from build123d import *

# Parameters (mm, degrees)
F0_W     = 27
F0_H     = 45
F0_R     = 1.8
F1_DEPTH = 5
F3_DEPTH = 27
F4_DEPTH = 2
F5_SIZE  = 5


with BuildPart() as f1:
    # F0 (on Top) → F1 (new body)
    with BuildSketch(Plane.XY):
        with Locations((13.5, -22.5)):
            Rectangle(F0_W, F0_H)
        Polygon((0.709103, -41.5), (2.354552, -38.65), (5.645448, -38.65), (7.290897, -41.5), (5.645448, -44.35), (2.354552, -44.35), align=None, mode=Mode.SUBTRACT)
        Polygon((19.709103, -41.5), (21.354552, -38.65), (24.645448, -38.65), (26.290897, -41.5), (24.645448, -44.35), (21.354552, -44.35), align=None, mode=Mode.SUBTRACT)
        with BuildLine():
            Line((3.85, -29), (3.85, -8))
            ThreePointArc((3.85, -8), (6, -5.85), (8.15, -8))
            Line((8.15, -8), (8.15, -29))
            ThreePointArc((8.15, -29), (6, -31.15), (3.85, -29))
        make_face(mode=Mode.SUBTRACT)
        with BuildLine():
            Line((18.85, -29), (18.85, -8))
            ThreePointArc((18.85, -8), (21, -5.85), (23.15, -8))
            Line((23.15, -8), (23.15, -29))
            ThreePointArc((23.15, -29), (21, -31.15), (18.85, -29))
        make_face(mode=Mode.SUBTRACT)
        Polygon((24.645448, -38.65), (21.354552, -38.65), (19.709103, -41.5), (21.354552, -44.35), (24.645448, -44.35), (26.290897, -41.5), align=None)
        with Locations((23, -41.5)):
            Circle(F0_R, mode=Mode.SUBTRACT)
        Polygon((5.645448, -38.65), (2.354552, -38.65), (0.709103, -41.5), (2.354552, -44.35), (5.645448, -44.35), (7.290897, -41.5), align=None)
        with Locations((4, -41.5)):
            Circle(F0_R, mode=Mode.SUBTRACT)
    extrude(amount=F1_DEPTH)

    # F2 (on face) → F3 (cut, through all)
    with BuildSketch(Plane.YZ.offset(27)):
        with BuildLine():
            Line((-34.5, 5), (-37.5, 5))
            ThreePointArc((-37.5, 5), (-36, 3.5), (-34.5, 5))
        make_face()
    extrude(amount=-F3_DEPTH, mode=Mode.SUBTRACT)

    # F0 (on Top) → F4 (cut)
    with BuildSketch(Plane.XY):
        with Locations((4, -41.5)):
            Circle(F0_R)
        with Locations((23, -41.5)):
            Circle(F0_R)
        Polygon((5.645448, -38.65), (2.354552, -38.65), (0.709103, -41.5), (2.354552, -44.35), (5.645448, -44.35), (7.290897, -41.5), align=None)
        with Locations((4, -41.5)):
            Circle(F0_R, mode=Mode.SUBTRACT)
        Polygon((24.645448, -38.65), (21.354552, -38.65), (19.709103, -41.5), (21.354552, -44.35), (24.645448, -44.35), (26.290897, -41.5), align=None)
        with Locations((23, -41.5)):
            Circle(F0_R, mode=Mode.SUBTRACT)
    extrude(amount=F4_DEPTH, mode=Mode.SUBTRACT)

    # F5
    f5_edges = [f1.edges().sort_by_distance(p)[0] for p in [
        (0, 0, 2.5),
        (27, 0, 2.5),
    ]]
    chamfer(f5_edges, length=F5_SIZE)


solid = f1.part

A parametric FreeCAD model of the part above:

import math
import FreeCAD as App
import Part
import Sketcher

V = App.Vector
Q = App.Units.Quantity


def edges_at(feature, points):
    """Names of the edges that pass closest to the given points."""
    edges = feature.Shape.Edges
    near = lambda p: min(range(len(edges)), key=lambda i: edges[i].distToShape(Part.Vertex(*p))[0])
    return sorted({f"Edge{near(p) + 1}" for p in points})

doc = App.newDocument("Part")
body = doc.addObject("PartDesign::Body", "Body")

# Sketch on XY plane
sketch1 = body.newObject("Sketcher::SketchObject", "Sketch")
sketch1.AttachmentSupport = (doc.getObject("XY_Plane"), [""])
sketch1.MapMode = "FlatFace"
sketch1.addGeometry([
    Part.LineSegment(V(0, 0, 0), V(0, -45, 0)),  # 0
    Part.LineSegment(V(0, -45, 0), V(27, -45, 0)),  # 1
    Part.LineSegment(V(27, -45, 0), V(27, 0, 0)),  # 2
    Part.LineSegment(V(27, 0, 0), V(0, 0, 0)),  # 3
    Part.Circle(V(4, -41.5, 0), V(0, 0, 1), 1.8),  # 4
    Part.Circle(V(23, -41.5, 0), V(0, 0, 1), 1.8),  # 5
    Part.ArcOfCircle(Part.Circle(V(6, -29, 0), V(0, 0, 1), 2.1), math.radians(180), math.radians(360)),  # 6
    Part.LineSegment(V(3.9, -29, 0), V(3.9, -8, 0)),  # 7
    Part.ArcOfCircle(Part.Circle(V(6, -8, 0), V(0, 0, 1), 2.1), math.radians(0), math.radians(180)),  # 8
    Part.LineSegment(V(8.2, -8, 0), V(8.2, -29, 0)),  # 9
    Part.ArcOfCircle(Part.Circle(V(21, -29, 0), V(0, 0, 1), 2.1), math.radians(180), math.radians(360)),  # 10
    Part.LineSegment(V(18.9, -29, 0), V(18.9, -8, 0)),  # 11
    Part.ArcOfCircle(Part.Circle(V(21, -8, 0), V(0, 0, 1), 2.1), math.radians(0), math.radians(180)),  # 12
    Part.LineSegment(V(23.1, -8, 0), V(23.1, -29, 0)),  # 13
], False)
sketch1.addConstraint([
    Sketcher.Constraint("Coincident", 0, 2, 1, 1),
    Sketcher.Constraint("Coincident", 1, 2, 2, 1),
    Sketcher.Constraint("Coincident", 2, 2, 3, 1),
    Sketcher.Constraint("Coincident", 3, 2, 0, 1),
    Sketcher.Constraint("Tangent", 6, 1, 7, 1),
    Sketcher.Constraint("Tangent", 7, 2, 8, 2),
    Sketcher.Constraint("Tangent", 8, 1, 9, 1),
    Sketcher.Constraint("Tangent", 9, 2, 6, 2),
    Sketcher.Constraint("Tangent", 10, 1, 11, 1),
    Sketcher.Constraint("Tangent", 11, 2, 12, 2),
    Sketcher.Constraint("Tangent", 12, 1, 13, 1),
    Sketcher.Constraint("Tangent", 13, 2, 10, 2),
    Sketcher.Constraint("Vertical", 0),
    Sketcher.Constraint("Horizontal", 1),
    Sketcher.Constraint("Vertical", 2),
    Sketcher.Constraint("Horizontal", 3),
    Sketcher.Constraint("Vertical", 7),
    Sketcher.Constraint("Vertical", 9),
    Sketcher.Constraint("Vertical", 11),
    Sketcher.Constraint("Vertical", 13),
    Sketcher.Constraint("Coincident", 3, 2, -1, 1),
    Sketcher.Constraint("Equal", 4, 5),
    Sketcher.Constraint("Equal", 8, 10),
    Sketcher.Constraint("Horizontal", 4, 3, 5, 3),
    Sketcher.Constraint("Horizontal", 6, 3, 10, 3),
    Sketcher.Constraint("Horizontal", 8, 3, 12, 3),
    Sketcher.Constraint("Diameter", 4, 3.6),
    Sketcher.Constraint("DistanceX", 1, 1, 1, 2, 27.0),
    Sketcher.Constraint("DistanceY", 0, 2, 0, 1, 45.0),
    Sketcher.Constraint("DistanceY", 7, 1, 7, 2, 21.0),
    Sketcher.Constraint("Radius", 6, 2.15),
    Sketcher.Constraint("DistanceX", -1, 1, 4, 3, 4.0),
    Sketcher.Constraint("DistanceX", -1, 1, 5, 3, 23.0),
    Sketcher.Constraint("DistanceX", -1, 1, 6, 3, 6.0),
    Sketcher.Constraint("DistanceY", 6, 3, -1, 1, 29.0),
    Sketcher.Constraint("DistanceX", -1, 1, 10, 3, 21.0),
    Sketcher.Constraint("DistanceY", 4, 3, -1, 1, 41.5),
])
pad1 = body.newObject("PartDesign::Pad", "Pad")
pad1.Profile = sketch1
pad1.Length = 5

# Sketch on YZ plane
sketch2 = body.newObject("Sketcher::SketchObject", "Sketch001")
sketch2.AttachmentSupport = (doc.getObject("YZ_Plane"), [""])
sketch2.MapMode = "FlatFace"
sketch2.AttachmentOffset = App.Placement(V(0, 0, 27), App.Rotation())
sketch2.addGeometry([
    Part.LineSegment(V(-34.5, 5, 0), V(-37.5, 5, 0)),
    Part.ArcOfCircle(Part.Circle(V(-36, 5, 0), V(0, 0, 1), 1.5), math.radians(180), math.radians(360)),
], False)
sketch2.addConstraint([
    Sketcher.Constraint("Coincident", 0, 1, 1, 2),
    Sketcher.Constraint("Coincident", 1, 1, 0, 2),
    Sketcher.Constraint("Horizontal", 0),
    Sketcher.Constraint("Horizontal", 1, 3, 0, 1),
    Sketcher.Constraint("Radius", 1, 1.5),
    Sketcher.Constraint("DistanceX", 1, 3, -1, 1, 36.0),
    Sketcher.Constraint("DistanceY", -1, 1, 1, 3, 5.0),
])
pocket1 = body.newObject("PartDesign::Pocket", "Pocket")
pocket1.Profile = sketch2
pocket1.Type = "ThroughAll"

# Sketch on XY plane
sketch3 = body.newObject("Sketcher::SketchObject", "Sketch002")
sketch3.AttachmentSupport = (doc.getObject("XY_Plane"), [""])
sketch3.MapMode = "FlatFace"
sketch3.addGeometry([
    Part.LineSegment(V(5.6, -38.6, 0), V(2.4, -38.6, 0)),  # 0
    Part.LineSegment(V(2.4, -38.6, 0), V(0.7, -41.5, 0)),  # 1
    Part.LineSegment(V(0.7, -41.5, 0), V(2.4, -44.4, 0)),  # 2
    Part.LineSegment(V(2.4, -44.4, 0), V(5.6, -44.4, 0)),  # 3
    Part.LineSegment(V(5.6, -44.4, 0), V(7.3, -41.5, 0)),  # 4
    Part.LineSegment(V(7.3, -41.5, 0), V(5.6, -38.6, 0)),  # 5
    Part.Circle(V(4, -41.5, 0), V(0, 0, 1), 1.8),  # 6
    Part.LineSegment(V(24.6, -38.6, 0), V(21.4, -38.6, 0)),  # 7
    Part.LineSegment(V(21.4, -38.6, 0), V(19.7, -41.5, 0)),  # 8
    Part.LineSegment(V(19.7, -41.5, 0), V(21.4, -44.4, 0)),  # 9
    Part.LineSegment(V(21.4, -44.4, 0), V(24.6, -44.4, 0)),  # 10
    Part.LineSegment(V(24.6, -44.4, 0), V(26.3, -41.5, 0)),  # 11
    Part.LineSegment(V(26.3, -41.5, 0), V(24.6, -38.6, 0)),  # 12
    Part.Circle(V(23, -41.5, 0), V(0, 0, 1), 1.8),  # 13
], False)
sketch3.addConstraint([
    Sketcher.Constraint("Coincident", 0, 2, 1, 1),
    Sketcher.Constraint("Coincident", 1, 2, 2, 1),
    Sketcher.Constraint("Coincident", 2, 2, 3, 1),
    Sketcher.Constraint("Coincident", 3, 2, 4, 1),
    Sketcher.Constraint("Coincident", 4, 2, 5, 1),
    Sketcher.Constraint("Coincident", 5, 2, 0, 1),
    Sketcher.Constraint("Coincident", 7, 2, 8, 1),
    Sketcher.Constraint("Coincident", 8, 2, 9, 1),
    Sketcher.Constraint("Coincident", 9, 2, 10, 1),
    Sketcher.Constraint("Coincident", 10, 2, 11, 1),
    Sketcher.Constraint("Coincident", 11, 2, 12, 1),
    Sketcher.Constraint("Coincident", 12, 2, 7, 1),
    Sketcher.Constraint("Horizontal", 0),
    Sketcher.Constraint("Horizontal", 3),
    Sketcher.Constraint("Horizontal", 7),
    Sketcher.Constraint("Horizontal", 10),
    Sketcher.Constraint("Equal", 6, 13),
    Sketcher.Constraint("Parallel", 1, 4),
    Sketcher.Constraint("Parallel", 2, 5),
    Sketcher.Constraint("Parallel", 4, 8),
    Sketcher.Constraint("Parallel", 5, 9),
    Sketcher.Constraint("Parallel", 8, 11),
    Sketcher.Constraint("Parallel", 9, 12),
    Sketcher.Constraint("Horizontal", 6, 3, 13, 3),
    Sketcher.Constraint("Horizontal", 13, 3, 1, 2),
    Sketcher.Constraint("Horizontal", 1, 2, 4, 2),
    Sketcher.Constraint("Horizontal", 5, 2, 7, 2),
    Sketcher.Constraint("Horizontal", 4, 2, 8, 2),
    Sketcher.Constraint("Horizontal", 3, 2, 9, 2),
    Sketcher.Constraint("Horizontal", 8, 2, 11, 2),
    Sketcher.Constraint("Vertical", 0, 2, 2, 2),
    Sketcher.Constraint("Vertical", 3, 2, 5, 2),
    Sketcher.Constraint("Equal", 3, 7),
    Sketcher.Constraint("Diameter", 6, 3.6),
    Sketcher.Constraint("Angle", 1, Q("-120.000011 deg")),
    Sketcher.Constraint("DistanceX", -1, 1, 6, 3, 4.0),
    Sketcher.Constraint("DistanceX", -1, 1, 13, 3, 23.0),
    Sketcher.Constraint("DistanceY", 6, 3, -1, 1, 41.5),
    Sketcher.Constraint("DistanceY", 2, 2, 0, 2, 5.7),
    Sketcher.Constraint("DistanceX", 0, 2, 0, 1, 3.290896),
    Sketcher.Constraint("DistanceX", -1, 1, 0, 2, 2.354552),
    Sketcher.Constraint("DistanceX", 4, 2, 10, 2, 17.354551),
])
pocket2 = body.newObject("PartDesign::Pocket", "Pocket001")
pocket2.Profile = sketch3
pocket2.Length = 2
pocket2.Reversed = True
doc.recompute()

chamfer = body.newObject("PartDesign::Chamfer", "Chamfer")
chamfer.Base = (pocket2, edges_at(pocket2, [(0, 0, 2.5), (27, 0, 2.5)]))
chamfer.Size = 5

doc.recompute()
